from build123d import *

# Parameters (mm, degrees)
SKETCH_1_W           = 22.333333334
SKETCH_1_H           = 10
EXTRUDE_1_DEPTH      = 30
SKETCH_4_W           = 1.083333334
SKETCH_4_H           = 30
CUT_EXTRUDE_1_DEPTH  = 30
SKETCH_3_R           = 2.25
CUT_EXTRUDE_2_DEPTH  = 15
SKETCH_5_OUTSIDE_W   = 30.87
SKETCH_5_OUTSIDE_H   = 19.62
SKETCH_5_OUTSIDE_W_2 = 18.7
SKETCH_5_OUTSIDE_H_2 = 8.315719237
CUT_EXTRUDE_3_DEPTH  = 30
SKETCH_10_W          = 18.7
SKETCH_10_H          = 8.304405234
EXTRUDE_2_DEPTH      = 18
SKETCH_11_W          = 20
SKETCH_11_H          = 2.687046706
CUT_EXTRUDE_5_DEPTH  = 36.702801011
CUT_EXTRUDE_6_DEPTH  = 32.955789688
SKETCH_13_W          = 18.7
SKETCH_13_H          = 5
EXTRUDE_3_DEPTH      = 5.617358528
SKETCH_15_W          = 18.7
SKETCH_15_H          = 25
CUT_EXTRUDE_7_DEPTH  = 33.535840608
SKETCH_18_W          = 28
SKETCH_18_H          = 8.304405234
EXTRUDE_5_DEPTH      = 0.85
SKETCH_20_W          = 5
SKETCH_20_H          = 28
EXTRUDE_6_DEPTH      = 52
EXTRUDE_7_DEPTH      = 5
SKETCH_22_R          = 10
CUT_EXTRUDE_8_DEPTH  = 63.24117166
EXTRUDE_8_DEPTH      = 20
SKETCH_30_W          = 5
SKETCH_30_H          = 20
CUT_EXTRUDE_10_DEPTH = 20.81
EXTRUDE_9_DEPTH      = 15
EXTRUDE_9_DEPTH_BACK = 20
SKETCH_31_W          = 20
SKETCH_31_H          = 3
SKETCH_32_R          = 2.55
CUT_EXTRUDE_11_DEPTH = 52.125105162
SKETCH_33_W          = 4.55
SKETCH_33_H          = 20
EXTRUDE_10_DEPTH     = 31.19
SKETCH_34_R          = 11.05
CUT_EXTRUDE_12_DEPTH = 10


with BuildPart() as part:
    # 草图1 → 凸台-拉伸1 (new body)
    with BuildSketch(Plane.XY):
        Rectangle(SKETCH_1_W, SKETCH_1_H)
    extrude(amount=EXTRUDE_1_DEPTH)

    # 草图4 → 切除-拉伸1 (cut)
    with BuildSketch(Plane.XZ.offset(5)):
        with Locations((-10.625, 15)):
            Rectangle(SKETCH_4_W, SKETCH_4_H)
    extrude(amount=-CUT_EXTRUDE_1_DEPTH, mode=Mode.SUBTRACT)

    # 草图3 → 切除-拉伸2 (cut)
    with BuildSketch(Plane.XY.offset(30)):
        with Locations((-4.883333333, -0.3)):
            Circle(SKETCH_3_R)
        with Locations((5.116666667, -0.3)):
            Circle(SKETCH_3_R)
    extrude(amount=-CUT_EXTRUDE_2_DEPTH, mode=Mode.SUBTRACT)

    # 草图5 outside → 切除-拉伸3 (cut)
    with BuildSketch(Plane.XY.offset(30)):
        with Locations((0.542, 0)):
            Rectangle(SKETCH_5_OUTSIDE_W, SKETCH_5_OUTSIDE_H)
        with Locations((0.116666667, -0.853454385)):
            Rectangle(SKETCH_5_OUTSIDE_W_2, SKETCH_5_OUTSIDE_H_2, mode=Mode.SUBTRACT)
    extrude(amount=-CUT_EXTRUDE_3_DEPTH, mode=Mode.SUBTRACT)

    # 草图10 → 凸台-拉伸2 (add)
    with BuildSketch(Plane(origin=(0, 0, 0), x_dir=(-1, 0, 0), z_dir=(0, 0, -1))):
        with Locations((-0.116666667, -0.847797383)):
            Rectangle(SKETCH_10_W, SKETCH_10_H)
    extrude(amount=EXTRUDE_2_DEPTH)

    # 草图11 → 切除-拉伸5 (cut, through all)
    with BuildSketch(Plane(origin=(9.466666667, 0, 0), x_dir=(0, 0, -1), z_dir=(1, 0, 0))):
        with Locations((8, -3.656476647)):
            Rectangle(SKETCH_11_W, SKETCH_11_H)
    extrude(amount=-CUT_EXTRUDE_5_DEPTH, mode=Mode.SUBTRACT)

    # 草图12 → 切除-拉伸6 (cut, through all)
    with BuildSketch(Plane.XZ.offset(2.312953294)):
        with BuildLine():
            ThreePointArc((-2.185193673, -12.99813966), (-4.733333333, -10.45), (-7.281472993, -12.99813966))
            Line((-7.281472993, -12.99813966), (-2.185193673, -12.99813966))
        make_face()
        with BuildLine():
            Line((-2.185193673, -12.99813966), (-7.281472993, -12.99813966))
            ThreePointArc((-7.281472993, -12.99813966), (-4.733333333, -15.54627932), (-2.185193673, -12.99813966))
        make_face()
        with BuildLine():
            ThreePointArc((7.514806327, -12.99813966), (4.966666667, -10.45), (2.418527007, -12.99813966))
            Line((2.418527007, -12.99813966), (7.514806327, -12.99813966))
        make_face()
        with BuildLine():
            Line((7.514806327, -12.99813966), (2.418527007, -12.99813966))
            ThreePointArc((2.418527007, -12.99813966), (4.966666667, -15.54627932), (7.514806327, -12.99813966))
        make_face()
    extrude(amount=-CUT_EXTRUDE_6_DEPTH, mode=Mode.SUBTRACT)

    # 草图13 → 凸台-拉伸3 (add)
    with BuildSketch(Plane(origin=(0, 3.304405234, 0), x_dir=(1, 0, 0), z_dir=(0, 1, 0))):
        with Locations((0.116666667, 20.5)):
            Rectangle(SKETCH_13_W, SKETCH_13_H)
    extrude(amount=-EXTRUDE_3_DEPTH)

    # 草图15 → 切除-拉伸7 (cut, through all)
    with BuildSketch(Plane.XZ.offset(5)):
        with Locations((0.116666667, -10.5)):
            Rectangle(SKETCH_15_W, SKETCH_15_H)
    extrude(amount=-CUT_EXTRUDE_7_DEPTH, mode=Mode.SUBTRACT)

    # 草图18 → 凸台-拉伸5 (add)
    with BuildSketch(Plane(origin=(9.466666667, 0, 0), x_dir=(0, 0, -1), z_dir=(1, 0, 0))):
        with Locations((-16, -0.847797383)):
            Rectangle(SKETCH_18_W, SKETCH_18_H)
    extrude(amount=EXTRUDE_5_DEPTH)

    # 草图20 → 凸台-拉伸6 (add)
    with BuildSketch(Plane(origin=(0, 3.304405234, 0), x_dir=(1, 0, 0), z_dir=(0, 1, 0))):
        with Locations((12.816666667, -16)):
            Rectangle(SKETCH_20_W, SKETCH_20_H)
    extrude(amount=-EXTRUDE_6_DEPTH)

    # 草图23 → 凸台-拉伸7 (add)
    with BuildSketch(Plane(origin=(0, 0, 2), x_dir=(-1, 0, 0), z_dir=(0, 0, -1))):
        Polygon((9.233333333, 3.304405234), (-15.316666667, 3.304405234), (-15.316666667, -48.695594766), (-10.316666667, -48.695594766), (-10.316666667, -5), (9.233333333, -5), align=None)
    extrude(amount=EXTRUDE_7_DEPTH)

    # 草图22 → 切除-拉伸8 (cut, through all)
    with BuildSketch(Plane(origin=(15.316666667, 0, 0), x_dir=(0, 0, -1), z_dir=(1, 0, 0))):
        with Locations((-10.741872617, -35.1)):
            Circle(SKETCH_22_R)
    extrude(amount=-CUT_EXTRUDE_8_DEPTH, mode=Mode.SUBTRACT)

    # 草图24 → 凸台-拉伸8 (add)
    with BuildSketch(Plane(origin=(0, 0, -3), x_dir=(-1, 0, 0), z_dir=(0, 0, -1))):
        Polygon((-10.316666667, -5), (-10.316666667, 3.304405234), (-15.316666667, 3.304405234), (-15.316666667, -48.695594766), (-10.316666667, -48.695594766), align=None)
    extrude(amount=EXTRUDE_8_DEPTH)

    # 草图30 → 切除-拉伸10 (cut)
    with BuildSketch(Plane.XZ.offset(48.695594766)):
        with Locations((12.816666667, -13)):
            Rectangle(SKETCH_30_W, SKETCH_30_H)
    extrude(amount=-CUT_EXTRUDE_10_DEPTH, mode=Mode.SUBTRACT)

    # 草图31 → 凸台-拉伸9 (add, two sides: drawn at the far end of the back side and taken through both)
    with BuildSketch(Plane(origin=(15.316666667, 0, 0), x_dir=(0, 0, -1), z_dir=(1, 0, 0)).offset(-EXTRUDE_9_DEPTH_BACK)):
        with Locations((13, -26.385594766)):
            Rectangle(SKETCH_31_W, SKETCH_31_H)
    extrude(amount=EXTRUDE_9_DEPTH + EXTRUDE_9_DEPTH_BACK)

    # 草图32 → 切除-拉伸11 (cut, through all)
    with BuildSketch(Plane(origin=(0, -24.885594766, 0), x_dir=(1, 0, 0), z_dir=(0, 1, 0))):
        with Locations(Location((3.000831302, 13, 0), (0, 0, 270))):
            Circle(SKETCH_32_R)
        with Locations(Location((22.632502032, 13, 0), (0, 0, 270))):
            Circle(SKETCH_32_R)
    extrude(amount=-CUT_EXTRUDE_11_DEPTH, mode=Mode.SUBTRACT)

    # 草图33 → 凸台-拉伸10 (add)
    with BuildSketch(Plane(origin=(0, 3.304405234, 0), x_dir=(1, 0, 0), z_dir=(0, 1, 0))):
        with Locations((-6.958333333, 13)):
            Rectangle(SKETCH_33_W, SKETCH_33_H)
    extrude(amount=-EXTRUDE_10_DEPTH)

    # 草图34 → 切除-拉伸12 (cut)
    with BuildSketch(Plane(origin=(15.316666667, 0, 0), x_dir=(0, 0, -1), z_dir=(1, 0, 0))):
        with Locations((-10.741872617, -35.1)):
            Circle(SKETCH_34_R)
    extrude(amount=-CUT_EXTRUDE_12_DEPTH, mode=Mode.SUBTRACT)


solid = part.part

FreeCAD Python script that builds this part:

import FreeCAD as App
import Part
import Sketcher

V = App.Vector


def add_polygon(sketch, points):
    """Adds a closed chain of lines whose ends are joined by coincident constraints."""
    first, n = sketch.GeometryCount, len(points)
    for a, b in zip(points, points[1:] + points[:1]):
        sketch.addGeometry(Part.LineSegment(App.Vector(*a, 0), App.Vector(*b, 0)), False)
    for i in range(n):
        sketch.addConstraint(Sketcher.Constraint("Coincident", first + i, 2, first + (i + 1) % n, 1))

doc = App.newDocument("Part")
body = doc.addObject("PartDesign::Body", "Body")

# Sketch on XY plane
sketch1 = body.newObject("Sketcher::SketchObject", "Sketch")
sketch1.AttachmentSupport = (doc.getObject("XY_Plane"), [""])
sketch1.MapMode = "FlatFace"
add_polygon(sketch1, [(-11, 5), (-11, -5), (11, -5), (11, 5)])  # lines 0-3
sketch1.addConstraint([
    Sketcher.Constraint("Vertical", 0),
    Sketcher.Constraint("Horizontal", 1),
    Sketcher.Constraint("Vertical", 2),
    Sketcher.Constraint("Horizontal", 3),
    Sketcher.Constraint("Symmetric", 0, 2, 2, 2, -1, 1),
    Sketcher.Constraint("DistanceY", 0, 2, 0, 1, 10.0),
    Sketcher.Constraint("DistanceX", 1, 1, 1, 2, 22.333333),
])
pad1 = body.newObject("PartDesign::Pad", "Pad")
pad1.Profile = sketch1
pad1.Length = 30

# Sketch on XZ plane
sketch2 = body.newObject("Sketcher::SketchObject", "Sketch001")
sketch2.AttachmentSupport = (doc.getObject("XZ_Plane"), [""])
sketch2.MapMode = "FlatFace"
sketch2.AttachmentOffset = App.Placement(V(0, 0, 5), App.Rotation())
add_polygon(sketch2, [(-11.2, 30), (-11.2, 0), (-10.1, 0), (-10.1, 30)])  # lines 0-3
sketch2.addConstraint([
    Sketcher.Constraint("Vertical", 0),
    Sketcher.Constraint("Horizontal", 1),
    Sketcher.Constraint("Vertical", 2),
    Sketcher.Constraint("Horizontal", 3),
    Sketcher.Constraint("PointOnObject", 0, 2, -1),
    Sketcher.Constraint("DistanceY", 0, 2, 0, 1, 30.0),
    Sketcher.Constraint("DistanceX", 1, 1, 1, 2, 1.083333),
    Sketcher.Constraint("DistanceX", 0, 2, -1, 1, 11.166667),
])
pocket1 = body.newObject("PartDesign::Pocket", "Pocket")
pocket1.Profile = sketch2
pocket1.Length = 30

# Sketch on XY plane
sketch3 = body.newObject("Sketcher::SketchObject", "Sketch002")
sketch3.AttachmentSupport = (doc.getObject("XY_Plane"), [""])
sketch3.MapMode = "FlatFace"
sketch3.AttachmentOffset = App.Placement(V(0, 0, 30), App.Rotation())
sketch3.addGeometry([
    Part.Circle(V(-4.9, -0.3, 0), V(0, 0, 1), 2.2),
    Part.Circle(V(5.1, -0.3, 0), V(0, 0, 1), 2.2),
], False)
sketch3.addConstraint([
    Sketcher.Constraint("Equal", 0, 1),
    Sketcher.Constraint("Horizontal", 0, 3, 1, 3),
    Sketcher.Constraint("Diameter", 0, 4.5),
    Sketcher.Constraint("DistanceX", 0, 3, 1, 3, 10.0),
    Sketcher.Constraint("DistanceY", 0, 3, -1, 1, 0.3),
    Sketcher.Constraint("DistanceX", 0, 3, -1, 1, 4.883333),
])
pocket2 = body.newObject("PartDesign::Pocket", "Pocket001")
pocket2.Profile = sketch3
pocket2.Length = 15

# Sketch on XY plane
sketch4 = body.newObject("Sketcher::SketchObject", "Sketch003")
sketch4.AttachmentSupport = (doc.getObject("XY_Plane"), [""])
sketch4.MapMode = "FlatFace"
sketch4.AttachmentOffset = App.Placement(V(0, 0, 30), App.Rotation())
add_polygon(sketch4, [(-15, 10), (-15, -10), (16, -10), (16, 10)])  # lines 0-3
add_polygon(sketch4, [(9, -5), (-9, -5), (-9, 3), (9, 3)])  # lines 4-7
sketch4.addConstraint([
    Sketcher.Constraint("Vertical", 0),
    Sketcher.Constraint("Horizontal", 1),
    Sketcher.Constraint("Vertical", 2),
    Sketcher.Constraint("Horizontal", 3),
    Sketcher.Constraint("Horizontal", 4),
    Sketcher.Constraint("Vertical", 5),
    Sketcher.Constraint("Horizontal", 6),
    Sketcher.Constraint("Vertical", 7),
    Sketcher.Constraint("DistanceX", 4, 2, 4, 1, 18.7),
    Sketcher.Constraint("DistanceX", 1, 1, 1, 2, 30.87),
    Sketcher.Constraint("DistanceY", 0, 2, 0, 1, 19.62),
    Sketcher.Constraint("DistanceY", 0, 2, -1, 1, 9.81),
    Sketcher.Constraint("DistanceX", 0, 2, -1, 1, 14.893),
    Sketcher.Constraint("DistanceY", 5, 1, 5, 2, 8.315719),
    Sketcher.Constraint("DistanceX", 4, 2, -1, 1, 9.233333),
    Sketcher.Constraint("DistanceY", 4, 2, -1, 1, 5.011314),
])
pocket3 = body.newObject("PartDesign::Pocket", "Pocket002")
pocket3.Profile = sketch4
pocket3.Length = 30

# Sketch on XY plane
sketch5 = body.newObject("Sketcher::SketchObject", "Sketch004")
sketch5.AttachmentSupport = (doc.getObject("XY_Plane"), [""])
sketch5.MapMode = "FlatFace"
add_polygon(sketch5, [(9, 3), (9, -5), (-9, -5), (-9, 3)])  # lines 0-3
sketch5.addConstraint([
    Sketcher.Constraint("Vertical", 0),
    Sketcher.Constraint("Horizontal", 1),
    Sketcher.Constraint("Vertical", 2),
    Sketcher.Constraint("Horizontal", 3),
    Sketcher.Constraint("DistanceX", 1, 2, 1, 1, 18.7),
    Sketcher.Constraint("DistanceY", 0, 2, -1, 1, 5.0),
    Sketcher.Constraint("DistanceY", 0, 2, 0, 1, 8.304405),
    Sketcher.Constraint("DistanceX", -1, 1, 0, 2, 9.466667),
])
pad2 = body.newObject("PartDesign::Pad", "Pad001")
pad2.Profile = sketch5
pad2.Length = 18
pad2.Reversed = True

# Sketch on YZ plane
sketch6 = body.newObject("Sketcher::SketchObject", "Sketch005")
sketch6.AttachmentSupport = (doc.getObject("YZ_Plane"), [""])
sketch6.MapMode = "FlatFace"
sketch6.AttachmentOffset = App.Placement(V(0, 0, 9.466667), App.Rotation())
add_polygon(sketch6, [(-2.3, 2), (-5, 2), (-5, -18), (-2.3, -18)])  # lines 0-3
sketch6.addConstraint([
    Sketcher.Constraint("Horizontal", 0),
    Sketcher.Constraint("Vertical", 1),
    Sketcher.Constraint("Horizontal", 2),
    Sketcher.Constraint("Vertical", 3),
    Sketcher.Constraint("DistanceY", 1, 2, 1, 1, 20.0),
    Sketcher.Constraint("DistanceX", 0, 2, -1, 1, 5.0),
    Sketcher.Constraint("DistanceY", -1, 1, 0, 2, 2.0),
    Sketcher.Constraint("DistanceX", 0, 2, 0, 1, 2.687047),
])
pocket4 = body.newObject("PartDesign::Pocket", "Pocket003")
pocket4.Profile = sketch6
pocket4.Type = "ThroughAll"

# Sketch on XZ plane
sketch7 = body.newObject("Sketcher::SketchObject", "Sketch006")
sketch7.AttachmentSupport = (doc.getObject("XZ_Plane"), [""])
sketch7.MapMode = "FlatFace"
sketch7.AttachmentOffset = App.Placement(V(0, 0, 2.312953), App.Rotation())
sketch7.addGeometry([
    Part.Circle(V(-4.7, -13, 0), V(0, 0, 1), 2.5),
    Part.Circle(V(5, -13, 0), V(0, 0, 1), 2.5),
], False)
sketch7.addConstraint([
    Sketcher.Constraint("Equal", 0, 1),
    Sketcher.Constraint("Horizontal", 0, 3, 1, 3),
    Sketcher.Constraint("DistanceX", 0, 3, 1, 3, 9.7),
    Sketcher.Constraint("Diameter", 0, 5.096279),
    Sketcher.Constraint("DistanceY", 0, 3, -1, 1, 12.99814),
    Sketcher.Constraint("DistanceX", 0, 3, -1, 1, 4.733333),
])
pocket5 = body.newObject("PartDesign::Pocket", "Pocket004")
pocket5.Profile = sketch7
pocket5.Type = "ThroughAll"

# Sketch on XZ plane
sketch8 = body.newObject("Sketcher::SketchObject", "Sketch007")
sketch8.AttachmentSupport = (doc.getObject("XZ_Plane"), [""])
sketch8.MapMode = "FlatFace"
sketch8.AttachmentOffset = App.Placement(V(0, 0, -3.304405), App.Rotation())
add_polygon(sketch8, [(-9, -23), (-9, -18), (9, -18), (9, -23)])  # lines 0-3
sketch8.addConstraint([
    Sketcher.Constraint("Vertical", 0),
    Sketcher.Constraint("Horizontal", 1),
    Sketcher.Constraint("Vertical", 2),
    Sketcher.Constraint("Horizontal", 3),
    Sketcher.Constraint("DistanceY", 0, 1, 0, 2, 5.0),
    Sketcher.Constraint("DistanceX", 1, 1, 1, 2, 18.7),
    Sketcher.Constraint("DistanceY", 0, 2, -1, 1, 18.0),
    Sketcher.Constraint("DistanceX", 0, 2, -1, 1, 9.233333),
])
pad3 = body.newObject("PartDesign::Pad", "Pad002")
pad3.Profile = sketch8
pad3.Length = 5.617359

# Sketch on XZ plane
sketch9 = body.newObject("Sketcher::SketchObject", "Sketch008")
sketch9.AttachmentSupport = (doc.getObject("XZ_Plane"), [""])
sketch9.MapMode = "FlatFace"
sketch9.AttachmentOffset = App.Placement(V(0, 0, 5), App.Rotation())
add_polygon(sketch9, [(-9, 2), (-9, -23), (9, -23), (9, 2)])  # lines 0-3
sketch9.addConstraint([
    Sketcher.Constraint("Vertical", 0),
    Sketcher.Constraint("Horizontal", 1),
    Sketcher.Constraint("Vertical", 2),
    Sketcher.Constraint("Horizontal", 3),
    Sketcher.Constraint("DistanceY", 0, 2, 0, 1, 25.0),
    Sketcher.Constraint("DistanceX", 1, 1, 1, 2, 18.7),
    Sketcher.Constraint("DistanceY", 0, 2, -1, 1, 23.0),
    Sketcher.Constraint("DistanceX", 0, 2, -1, 1, 9.233333),
])
pocket6 = body.newObject("PartDesign::Pocket", "Pocket005")
pocket6.Profile = sketch9
pocket6.Type = "ThroughAll"

# Sketch on YZ plane
sketch10 = body.newObject("Sketcher::SketchObject", "Sketch009")
sketch10.AttachmentSupport = (doc.getObject("YZ_Plane"), [""])
sketch10.MapMode = "FlatFace"
sketch10.AttachmentOffset = App.Placement(V(0, 0, 9.466667), App.Rotation())
add_polygon(sketch10, [(3, 30), (-5, 30), (-5, 2), (3, 2)])  # lines 0-3
sketch10.addConstraint([
    Sketcher.Constraint("Horizontal", 0),
    Sketcher.Constraint("Vertical", 1),
    Sketcher.Constraint("Horizontal", 2),
    Sketcher.Constraint("Vertical", 3),
    Sketcher.Constraint("DistanceY", 1, 2, 1, 1, 28.0),
    Sketcher.Constraint("DistanceX", 0, 2, -1, 1, 5.0),
    Sketcher.Constraint("DistanceY", -1, 1, 0, 2, 30.0),
    Sketcher.Constraint("DistanceX", 0, 2, 0, 1, 8.304405),
])
pad4 = body.newObject("PartDesign::Pad", "Pad003")
pad4.Profile = sketch10
pad4.Length = 0.85

# Sketch on XZ plane
sketch11 = body.newObject("Sketcher::SketchObject", "Sketch010")
sketch11.AttachmentSupport = (doc.getObject("XZ_Plane"), [""])
sketch11.MapMode = "FlatFace"
sketch11.AttachmentOffset = App.Placement(V(0, 0, -3.304405), App.Rotation())
add_polygon(sketch11, [(10, 2), (10, 30), (15, 30), (15, 2)])  # lines 0-3
sketch11.addConstraint([
    Sketcher.Constraint("Vertical", 0),
    Sketcher.Constraint("Horizontal", 1),
    Sketcher.Constraint("Vertical", 2),
    Sketcher.Constraint("Horizontal", 3),
    Sketcher.Constraint("DistanceX", 1, 1, 1, 2, 5.0),
    Sketcher.Constraint("DistanceY", 0, 1, 0, 2, 28.0),
    Sketcher.Constraint("DistanceY", -1, 1, 0, 2, 30.0),
    Sketcher.Constraint("DistanceX", -1, 1, 0, 2, 10.316667),
])
pad5 = body.newObject("PartDesign::Pad", "Pad004")
pad5.Profile = sketch11
pad5.Length = 52

# Sketch on XY plane
sketch12 = body.newObject("Sketcher::SketchObject", "Sketch011")
sketch12.AttachmentSupport = (doc.getObject("XY_Plane"), [""])
sketch12.MapMode = "FlatFace"
sketch12.AttachmentOffset = App.Placement(V(0, 0, 2), App.Rotation())
add_polygon(sketch12, [(-9, 3), (15, 3), (15, -49), (10, -49), (10, -5), (-9, -5)])  # lines 0-5
sketch12.addConstraint([
    Sketcher.Constraint("Horizontal", 0),
    Sketcher.Constraint("Vertical", 1),
    Sketcher.Constraint("Horizontal", 2),
    Sketcher.Constraint("Vertical", 3),
    Sketcher.Constraint("Horizontal", 4),
    Sketcher.Constraint("Vertical", 5),
    Sketcher.Constraint("DistanceX", 2, 2, 2, 1, 5.0),
    Sketcher.Constraint("DistanceY", 1, 2, 1, 1, 52.0),
    Sketcher.Constraint("DistanceY", 3, 2, -1, 1, 5.0),
    Sketcher.Constraint("DistanceX", 0, 1, 0, 2, 24.55),
    Sketcher.Constraint("DistanceY", 3, 1, 3, 2, 43.695595),
    Sketcher.Constraint("DistanceX", -1, 1, 0, 2, 15.316667),
])
pad6 = body.newObject("PartDesign::Pad", "Pad005")
pad6.Profile = sketch12
pad6.Length = 5
pad6.Reversed = True

# Sketch on YZ plane
sketch13 = body.newObject("Sketcher::SketchObject", "Sketch012")
sketch13.AttachmentSupport = (doc.getObject("YZ_Plane"), [""])
sketch13.MapMode = "FlatFace"
sketch13.AttachmentOffset = App.Placement(V(0, 0, 15.316667), App.Rotation())
sketch13.addGeometry(Part.Circle(V(-35, 11, 0), V(0, 0, 1), 10), False)
sketch13.addConstraint([
    Sketcher.Constraint("Diameter", 0, 20.0),
    Sketcher.Constraint("DistanceX", 0, 3, -1, 1, 35.1),
    Sketcher.Constraint("DistanceY", -1, 1, 0, 3, 10.741873),
])
pocket7 = body.newObject("PartDesign::Pocket", "Pocket006")
pocket7.Profile = sketch13
pocket7.Type = "ThroughAll"

# Sketch on XY plane
sketch14 = body.newObject("Sketcher::SketchObject", "Sketch013")
sketch14.AttachmentSupport = (doc.getObject("XY_Plane"), [""])
sketch14.MapMode = "FlatFace"
sketch14.AttachmentOffset = App.Placement(V(0, 0, -3), App.Rotation())
add_polygon(sketch14, [(10, 3), (15, 3), (15, -49), (10, -49)])  # lines 0-3
sketch14.addConstraint([
    Sketcher.Constraint("Horizontal", 0),
    Sketcher.Constraint("Vertical", 1),
    Sketcher.Constraint("Horizontal", 2),
    Sketcher.Constraint("Vertical", 3),
    Sketcher.Constraint("DistanceX", 0, 1, 0, 2, 5.0),
    Sketcher.Constraint("DistanceY", 1, 2, 1, 1, 52.0),
    Sketcher.Constraint("DistanceX", -1, 1, 0, 2, 15.316667),
    Sketcher.Constraint("DistanceY", -1, 1, 0, 2, 3.304405),
])
pad7 = body.newObject("PartDesign::Pad", "Pad006")
pad7.Profile = sketch14
pad7.Length = 20
pad7.Reversed = True

# Sketch on XZ plane
sketch15 = body.newObject("Sketcher::SketchObject", "Sketch014")
sketch15.AttachmentSupport = (doc.getObject("XZ_Plane"), [""])
sketch15.MapMode = "FlatFace"
sketch15.AttachmentOffset = App.Placement(V(0, 0, 48.695595), App.Rotation())
add_polygon(sketch15, [(10, -3), (10, -23), (15, -23), (15, -3)])  # lines 0-3
sketch15.addConstraint([
    Sketcher.Constraint("Vertical", 0),
    Sketcher.Constraint("Horizontal", 1),
    Sketcher.Constraint("Vertical", 2),
    Sketcher.Constraint("Horizontal", 3),
    Sketcher.Constraint("DistanceX", 1, 1, 1, 2, 5.0),
    Sketcher.Constraint("DistanceY", 0, 2, 0, 1, 20.0),
    Sketcher.Constraint("DistanceY", 0, 2, -1, 1, 23.0),
    Sketcher.Constraint("DistanceX", -1, 1, 0, 2, 10.316667),
])
pocket8 = body.newObject("PartDesign::Pocket", "Pocket007")
pocket8.Profile = sketch15
pocket8.Length = 20.81

# Sketch on YZ plane
sketch16 = body.newObject("Sketcher::SketchObject", "Sketch015")
sketch16.AttachmentSupport = (doc.getObject("YZ_Plane"), [""])
sketch16.MapMode = "FlatFace"
sketch16.AttachmentOffset = App.Placement(V(0, 0, 15.316667), App.Rotation())
add_polygon(sketch16, [(-24.9, -3), (-27.9, -3), (-27.9, -23), (-24.9, -23)])  # lines 0-3
sketch16.addConstraint([
    Sketcher.Constraint("Horizontal", 0),
    Sketcher.Constraint("Vertical", 1),
    Sketcher.Constraint("Horizontal", 2),
    Sketcher.Constraint("Vertical", 3),
    Sketcher.Constraint("DistanceX", 0, 2, 0, 1, 3.0),
    Sketcher.Constraint("DistanceY", 1, 2, 1, 1, 20.0),
    Sketcher.Constraint("DistanceY", 0, 2, -1, 1, 3.0),
    Sketcher.Constraint("DistanceX", 0, 2, -1, 1, 27.885595),
])
pad8 = body.newObject("PartDesign::Pad", "Pad007")
pad8.Profile = sketch16
pad8.Type = "TwoLengths"
pad8.Length = 15
pad8.Length2 = 20

# Sketch on XZ plane
sketch17 = body.newObject("Sketcher::SketchObject", "Sketch016")
sketch17.AttachmentSupport = (doc.getObject("XZ_Plane"), [""])
sketch17.MapMode = "FlatFace"
sketch17.AttachmentOffset = App.Placement(V(0, 0, 24.885595), App.Rotation())
sketch17.addGeometry([
    Part.Circle(V(3, -13, 0), V(0, 0, 1), 2.5),
    Part.Circle(V(22.6, -13, 0), V(0, 0, 1), 2.5),
], False)
sketch17.addConstraint([
    Sketcher.Constraint("Equal", 0, 1),
    Sketcher.Constraint("Horizontal", 0, 3, 1, 3),
    Sketcher.Constraint("Diameter", 0, 5.1),
    Sketcher.Constraint("DistanceY", 0, 3, -1, 1, 13.0),
    Sketcher.Constraint("DistanceX", -1, 1, 0, 3, 3.000831),
    Sketcher.Constraint("DistanceX", 0, 3, 1, 3, 19.631671),
])
pocket9 = body.newObject("PartDesign::Pocket", "Pocket008")
pocket9.Profile = sketch17
pocket9.Type = "ThroughAll"
pocket9.Reversed = True

# Sketch on XZ plane
sketch18 = body.newObject("Sketcher::SketchObject", "Sketch017")
sketch18.AttachmentSupport = (doc.getObject("XZ_Plane"), [""])
sketch18.MapMode = "FlatFace"
sketch18.AttachmentOffset = App.Placement(V(0, 0, -3.304405), App.Rotation())
add_polygon(sketch18, [(-9.2, -23), (-9.2, -3), (-4.7, -3), (-4.7, -23)])  # lines 0-3
sketch18.addConstraint([
    Sketcher.Constraint("Vertical", 0),
    Sketcher.Constraint("Horizontal", 1),
    Sketcher.Constraint("Vertical", 2),
    Sketcher.Constraint("Horizontal", 3),
    Sketcher.Constraint("DistanceY", 0, 1, 0, 2, 20.0),
    Sketcher.Constraint("DistanceY", 0, 2, -1, 1, 3.0),
    Sketcher.Constraint("DistanceX", 1, 1, 1, 2, 4.55),
    Sketcher.Constraint("DistanceX", 0, 2, -1, 1, 9.233333),
])
pad9 = body.newObject("PartDesign::Pad", "Pad008")
pad9.Profile = sketch18
pad9.Length = 31.19

# Sketch on YZ plane
sketch19 = body.newObject("Sketcher::SketchObject", "Sketch018")
sketch19.AttachmentSupport = (doc.getObject("YZ_Plane"), [""])
sketch19.MapMode = "FlatFace"
sketch19.AttachmentOffset = App.Placement(V(0, 0, 15.316667), App.Rotation())
sketch19.addGeometry(Part.Circle(V(-35, 11, 0), V(0, 0, 1), 11), False)
sketch19.addConstraint([
    Sketcher.Constraint("Diameter", 0, 22.1),
    Sketcher.Constraint("DistanceX", 0, 3, -1, 1, 35.1),
    Sketcher.Constraint("DistanceY", -1, 1, 0, 3, 10.741873),
])
pocket10 = body.newObject("PartDesign::Pocket", "Pocket009")
pocket10.Profile = sketch19
pocket10.Length = 10

doc.recompute()
